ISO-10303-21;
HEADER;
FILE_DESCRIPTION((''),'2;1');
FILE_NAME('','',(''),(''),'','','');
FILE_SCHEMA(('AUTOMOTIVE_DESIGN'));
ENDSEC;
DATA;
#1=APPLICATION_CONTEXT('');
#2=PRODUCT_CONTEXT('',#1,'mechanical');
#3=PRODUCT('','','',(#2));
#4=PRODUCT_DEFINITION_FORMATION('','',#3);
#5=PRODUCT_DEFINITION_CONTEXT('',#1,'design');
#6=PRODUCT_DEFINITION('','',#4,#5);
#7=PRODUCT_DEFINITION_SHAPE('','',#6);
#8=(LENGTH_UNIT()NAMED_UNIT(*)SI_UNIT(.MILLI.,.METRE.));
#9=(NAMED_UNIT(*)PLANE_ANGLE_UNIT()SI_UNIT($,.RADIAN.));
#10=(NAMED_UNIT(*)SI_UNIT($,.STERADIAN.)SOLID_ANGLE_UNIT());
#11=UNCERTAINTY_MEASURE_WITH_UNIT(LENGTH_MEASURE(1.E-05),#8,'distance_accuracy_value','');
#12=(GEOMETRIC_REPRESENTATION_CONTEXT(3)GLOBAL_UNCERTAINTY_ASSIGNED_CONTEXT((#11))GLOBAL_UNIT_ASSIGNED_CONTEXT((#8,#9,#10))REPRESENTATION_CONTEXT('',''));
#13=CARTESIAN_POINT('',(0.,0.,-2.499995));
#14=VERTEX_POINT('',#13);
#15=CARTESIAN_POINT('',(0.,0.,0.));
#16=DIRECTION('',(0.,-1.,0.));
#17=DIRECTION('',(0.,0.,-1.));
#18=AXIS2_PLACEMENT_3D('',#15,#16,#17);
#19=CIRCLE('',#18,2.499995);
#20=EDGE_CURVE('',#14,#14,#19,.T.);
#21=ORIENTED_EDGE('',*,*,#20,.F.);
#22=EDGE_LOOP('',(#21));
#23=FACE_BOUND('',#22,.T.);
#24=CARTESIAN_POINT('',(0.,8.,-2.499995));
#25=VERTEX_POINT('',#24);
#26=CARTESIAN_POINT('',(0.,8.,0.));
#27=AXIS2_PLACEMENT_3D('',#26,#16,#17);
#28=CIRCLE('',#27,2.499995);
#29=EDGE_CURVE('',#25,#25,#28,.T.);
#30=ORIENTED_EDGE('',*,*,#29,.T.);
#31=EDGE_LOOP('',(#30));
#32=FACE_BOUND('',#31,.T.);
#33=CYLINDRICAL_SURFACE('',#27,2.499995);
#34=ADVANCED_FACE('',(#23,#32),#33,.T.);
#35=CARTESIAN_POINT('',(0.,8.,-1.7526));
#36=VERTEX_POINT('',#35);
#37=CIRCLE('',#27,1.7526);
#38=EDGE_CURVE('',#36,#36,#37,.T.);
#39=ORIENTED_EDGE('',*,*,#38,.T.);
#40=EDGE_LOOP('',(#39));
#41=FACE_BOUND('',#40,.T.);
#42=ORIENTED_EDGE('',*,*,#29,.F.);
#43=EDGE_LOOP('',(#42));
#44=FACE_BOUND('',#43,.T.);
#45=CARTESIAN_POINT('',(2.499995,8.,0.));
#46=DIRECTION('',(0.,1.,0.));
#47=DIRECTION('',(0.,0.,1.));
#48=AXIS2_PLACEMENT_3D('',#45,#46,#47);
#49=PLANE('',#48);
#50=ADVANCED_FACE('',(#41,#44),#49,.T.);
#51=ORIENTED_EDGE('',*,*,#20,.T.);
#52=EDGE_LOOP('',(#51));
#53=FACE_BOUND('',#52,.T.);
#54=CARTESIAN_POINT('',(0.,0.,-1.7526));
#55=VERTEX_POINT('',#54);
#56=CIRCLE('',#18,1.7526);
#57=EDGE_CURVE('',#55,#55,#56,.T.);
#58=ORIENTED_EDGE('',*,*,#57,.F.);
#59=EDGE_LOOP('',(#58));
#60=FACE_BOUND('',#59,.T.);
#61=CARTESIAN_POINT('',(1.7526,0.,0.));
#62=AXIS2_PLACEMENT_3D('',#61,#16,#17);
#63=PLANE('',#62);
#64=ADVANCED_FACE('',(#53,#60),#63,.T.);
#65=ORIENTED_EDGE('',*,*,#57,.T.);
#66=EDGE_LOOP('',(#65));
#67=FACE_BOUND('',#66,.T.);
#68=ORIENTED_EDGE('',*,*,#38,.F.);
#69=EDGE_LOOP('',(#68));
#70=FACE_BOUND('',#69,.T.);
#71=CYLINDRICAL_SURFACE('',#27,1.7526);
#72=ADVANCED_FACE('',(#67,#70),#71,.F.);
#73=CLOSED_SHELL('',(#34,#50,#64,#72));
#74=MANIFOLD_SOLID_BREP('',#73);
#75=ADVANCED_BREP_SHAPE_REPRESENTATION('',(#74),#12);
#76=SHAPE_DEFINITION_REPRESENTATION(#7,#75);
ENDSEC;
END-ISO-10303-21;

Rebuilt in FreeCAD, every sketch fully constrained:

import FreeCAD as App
import Part
import Sketcher


def add_polygon(sketch, points):
    """Adds a closed chain of lines whose ends are joined by coincident constraints."""
    first, n = sketch.GeometryCount, len(points)
    for a, b in zip(points, points[1:] + points[:1]):
        sketch.addGeometry(Part.LineSegment(App.Vector(*a, 0), App.Vector(*b, 0)), False)
    for i in range(n):
        sketch.addConstraint(Sketcher.Constraint("Coincident", first + i, 2, first + (i + 1) % n, 1))

doc = App.newDocument("Part")
body = doc.addObject("PartDesign::Body", "Body")

# Sketch on XY plane
sketch1 = body.newObject("Sketcher::SketchObject", "Sketch")
sketch1.AttachmentSupport = (doc.getObject("XY_Plane"), [""])
sketch1.MapMode = "FlatFace"
add_polygon(sketch1, [(1.7526, 8), (1.7526, 0), (2.499995, 0), (2.499995, 8)])  # lines 0-3
sketch1.addConstraint([
    Sketcher.Constraint("Vertical", 0),
    Sketcher.Constraint("Horizontal", 1),
    Sketcher.Constraint("Vertical", 2),
    Sketcher.Constraint("Horizontal", 3),
    Sketcher.Constraint("PointOnObject", 0, 2, -1),
    Sketcher.Constraint("DistanceY", 0, 2, 0, 1, 8.0),
    Sketcher.Constraint("DistanceX", -1, 1, 0, 2, 1.7526),
    Sketcher.Constraint("DistanceX", 1, 1, 1, 2, 0.747395),
])
revolution = body.newObject("PartDesign::Revolution", "Revolution")
revolution.Profile = sketch1
revolution.ReferenceAxis = (sketch1, ["V_Axis"])
revolution.Angle = 360

doc.recompute()
